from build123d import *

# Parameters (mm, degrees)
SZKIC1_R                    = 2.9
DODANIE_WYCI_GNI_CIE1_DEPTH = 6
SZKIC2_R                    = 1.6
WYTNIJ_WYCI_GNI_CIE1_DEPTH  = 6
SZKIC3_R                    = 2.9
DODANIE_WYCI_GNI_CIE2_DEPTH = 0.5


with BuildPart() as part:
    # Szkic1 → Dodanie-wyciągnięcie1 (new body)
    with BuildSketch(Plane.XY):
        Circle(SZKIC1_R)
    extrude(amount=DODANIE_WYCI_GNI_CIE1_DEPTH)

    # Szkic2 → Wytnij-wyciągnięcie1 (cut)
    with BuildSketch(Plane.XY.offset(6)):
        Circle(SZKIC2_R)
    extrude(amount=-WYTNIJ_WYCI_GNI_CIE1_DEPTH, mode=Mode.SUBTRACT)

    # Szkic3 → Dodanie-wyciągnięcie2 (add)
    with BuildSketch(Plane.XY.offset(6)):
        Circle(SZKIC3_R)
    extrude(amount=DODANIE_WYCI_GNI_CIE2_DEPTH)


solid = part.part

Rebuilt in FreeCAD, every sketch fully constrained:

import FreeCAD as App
import Part
import Sketcher

V = App.Vector
Q = App.Units.Quantity

doc = App.newDocument("Part")
params = doc.addObject("Spreadsheet::Sheet", "Params")
for row, (alias, value) in enumerate([
    ("sketch1_diameter", "5.8 mm"),
    ("pad1_length", "6 mm"),
    ("sketch2_diameter", "3.2 mm"),
    ("pocket1_length", "6 mm"),
    ("sketch3_diameter", "5.8 mm"),
    ("pad2_length", "0.5 mm"),
], start=1):
    params.set(f"A{row}", alias)
    params.set(f"B{row}", "=" + value)
    params.setAlias(f"B{row}", alias)

body = doc.addObject("PartDesign::Body", "Body")

sketch1 = body.newObject("Sketcher::SketchObject", "Sketch")
sketch1.AttachmentSupport = (doc.getObject("XY_Plane"), [""])
sketch1.MapMode = "FlatFace"
sketch1.addGeometry(Part.Circle(V(0, 0, 0), V(0, 0, 1), 2.9), False)
sketch1.addConstraint([
    Sketcher.Constraint("Coincident", 0, 3, -1, 1),
    Sketcher.Constraint("Diameter", 0, Q("5.8 mm")),
])
sketch1.setExpression("Constraints[1]", "Params.sketch1_diameter")
pad1 = body.newObject("PartDesign::Pad", "Pad")
pad1.Profile = sketch1
pad1.setExpression("Length", "Params.pad1_length")

sketch2 = body.newObject("Sketcher::SketchObject", "Sketch001")
sketch2.AttachmentSupport = (doc.getObject("XY_Plane"), [""])
sketch2.MapMode = "FlatFace"
sketch2.AttachmentOffset = App.Placement(V(0, 0, 6), App.Rotation())
sketch2.addGeometry(Part.Circle(V(0, 0, 0), V(0, 0, 1), 1.6), False)
sketch2.addConstraint([
    Sketcher.Constraint("Coincident", 0, 3, -1, 1),
    Sketcher.Constraint("Diameter", 0, Q("3.2 mm")),
])
sketch2.setExpression("Constraints[1]", "Params.sketch2_diameter")
pocket1 = body.newObject("PartDesign::Pocket", "Pocket")
pocket1.Profile = sketch2
pocket1.setExpression("Length", "Params.pocket1_length")

sketch3 = body.newObject("Sketcher::SketchObject", "Sketch002")
sketch3.AttachmentSupport = (doc.getObject("XY_Plane"), [""])
sketch3.MapMode = "FlatFace"
sketch3.AttachmentOffset = App.Placement(V(0, 0, 6), App.Rotation())
sketch3.addGeometry(Part.Circle(V(0, 0, 0), V(0, 0, 1), 2.9), False)
sketch3.addConstraint([
    Sketcher.Constraint("Coincident", 0, 3, -1, 1),
    Sketcher.Constraint("Diameter", 0, Q("5.8 mm")),
])
sketch3.setExpression("Constraints[1]", "Params.sketch3_diameter")
pad2 = body.newObject("PartDesign::Pad", "Pad001")
pad2.Profile = sketch3
pad2.setExpression("Length", "Params.pad2_length")

doc.recompute()
